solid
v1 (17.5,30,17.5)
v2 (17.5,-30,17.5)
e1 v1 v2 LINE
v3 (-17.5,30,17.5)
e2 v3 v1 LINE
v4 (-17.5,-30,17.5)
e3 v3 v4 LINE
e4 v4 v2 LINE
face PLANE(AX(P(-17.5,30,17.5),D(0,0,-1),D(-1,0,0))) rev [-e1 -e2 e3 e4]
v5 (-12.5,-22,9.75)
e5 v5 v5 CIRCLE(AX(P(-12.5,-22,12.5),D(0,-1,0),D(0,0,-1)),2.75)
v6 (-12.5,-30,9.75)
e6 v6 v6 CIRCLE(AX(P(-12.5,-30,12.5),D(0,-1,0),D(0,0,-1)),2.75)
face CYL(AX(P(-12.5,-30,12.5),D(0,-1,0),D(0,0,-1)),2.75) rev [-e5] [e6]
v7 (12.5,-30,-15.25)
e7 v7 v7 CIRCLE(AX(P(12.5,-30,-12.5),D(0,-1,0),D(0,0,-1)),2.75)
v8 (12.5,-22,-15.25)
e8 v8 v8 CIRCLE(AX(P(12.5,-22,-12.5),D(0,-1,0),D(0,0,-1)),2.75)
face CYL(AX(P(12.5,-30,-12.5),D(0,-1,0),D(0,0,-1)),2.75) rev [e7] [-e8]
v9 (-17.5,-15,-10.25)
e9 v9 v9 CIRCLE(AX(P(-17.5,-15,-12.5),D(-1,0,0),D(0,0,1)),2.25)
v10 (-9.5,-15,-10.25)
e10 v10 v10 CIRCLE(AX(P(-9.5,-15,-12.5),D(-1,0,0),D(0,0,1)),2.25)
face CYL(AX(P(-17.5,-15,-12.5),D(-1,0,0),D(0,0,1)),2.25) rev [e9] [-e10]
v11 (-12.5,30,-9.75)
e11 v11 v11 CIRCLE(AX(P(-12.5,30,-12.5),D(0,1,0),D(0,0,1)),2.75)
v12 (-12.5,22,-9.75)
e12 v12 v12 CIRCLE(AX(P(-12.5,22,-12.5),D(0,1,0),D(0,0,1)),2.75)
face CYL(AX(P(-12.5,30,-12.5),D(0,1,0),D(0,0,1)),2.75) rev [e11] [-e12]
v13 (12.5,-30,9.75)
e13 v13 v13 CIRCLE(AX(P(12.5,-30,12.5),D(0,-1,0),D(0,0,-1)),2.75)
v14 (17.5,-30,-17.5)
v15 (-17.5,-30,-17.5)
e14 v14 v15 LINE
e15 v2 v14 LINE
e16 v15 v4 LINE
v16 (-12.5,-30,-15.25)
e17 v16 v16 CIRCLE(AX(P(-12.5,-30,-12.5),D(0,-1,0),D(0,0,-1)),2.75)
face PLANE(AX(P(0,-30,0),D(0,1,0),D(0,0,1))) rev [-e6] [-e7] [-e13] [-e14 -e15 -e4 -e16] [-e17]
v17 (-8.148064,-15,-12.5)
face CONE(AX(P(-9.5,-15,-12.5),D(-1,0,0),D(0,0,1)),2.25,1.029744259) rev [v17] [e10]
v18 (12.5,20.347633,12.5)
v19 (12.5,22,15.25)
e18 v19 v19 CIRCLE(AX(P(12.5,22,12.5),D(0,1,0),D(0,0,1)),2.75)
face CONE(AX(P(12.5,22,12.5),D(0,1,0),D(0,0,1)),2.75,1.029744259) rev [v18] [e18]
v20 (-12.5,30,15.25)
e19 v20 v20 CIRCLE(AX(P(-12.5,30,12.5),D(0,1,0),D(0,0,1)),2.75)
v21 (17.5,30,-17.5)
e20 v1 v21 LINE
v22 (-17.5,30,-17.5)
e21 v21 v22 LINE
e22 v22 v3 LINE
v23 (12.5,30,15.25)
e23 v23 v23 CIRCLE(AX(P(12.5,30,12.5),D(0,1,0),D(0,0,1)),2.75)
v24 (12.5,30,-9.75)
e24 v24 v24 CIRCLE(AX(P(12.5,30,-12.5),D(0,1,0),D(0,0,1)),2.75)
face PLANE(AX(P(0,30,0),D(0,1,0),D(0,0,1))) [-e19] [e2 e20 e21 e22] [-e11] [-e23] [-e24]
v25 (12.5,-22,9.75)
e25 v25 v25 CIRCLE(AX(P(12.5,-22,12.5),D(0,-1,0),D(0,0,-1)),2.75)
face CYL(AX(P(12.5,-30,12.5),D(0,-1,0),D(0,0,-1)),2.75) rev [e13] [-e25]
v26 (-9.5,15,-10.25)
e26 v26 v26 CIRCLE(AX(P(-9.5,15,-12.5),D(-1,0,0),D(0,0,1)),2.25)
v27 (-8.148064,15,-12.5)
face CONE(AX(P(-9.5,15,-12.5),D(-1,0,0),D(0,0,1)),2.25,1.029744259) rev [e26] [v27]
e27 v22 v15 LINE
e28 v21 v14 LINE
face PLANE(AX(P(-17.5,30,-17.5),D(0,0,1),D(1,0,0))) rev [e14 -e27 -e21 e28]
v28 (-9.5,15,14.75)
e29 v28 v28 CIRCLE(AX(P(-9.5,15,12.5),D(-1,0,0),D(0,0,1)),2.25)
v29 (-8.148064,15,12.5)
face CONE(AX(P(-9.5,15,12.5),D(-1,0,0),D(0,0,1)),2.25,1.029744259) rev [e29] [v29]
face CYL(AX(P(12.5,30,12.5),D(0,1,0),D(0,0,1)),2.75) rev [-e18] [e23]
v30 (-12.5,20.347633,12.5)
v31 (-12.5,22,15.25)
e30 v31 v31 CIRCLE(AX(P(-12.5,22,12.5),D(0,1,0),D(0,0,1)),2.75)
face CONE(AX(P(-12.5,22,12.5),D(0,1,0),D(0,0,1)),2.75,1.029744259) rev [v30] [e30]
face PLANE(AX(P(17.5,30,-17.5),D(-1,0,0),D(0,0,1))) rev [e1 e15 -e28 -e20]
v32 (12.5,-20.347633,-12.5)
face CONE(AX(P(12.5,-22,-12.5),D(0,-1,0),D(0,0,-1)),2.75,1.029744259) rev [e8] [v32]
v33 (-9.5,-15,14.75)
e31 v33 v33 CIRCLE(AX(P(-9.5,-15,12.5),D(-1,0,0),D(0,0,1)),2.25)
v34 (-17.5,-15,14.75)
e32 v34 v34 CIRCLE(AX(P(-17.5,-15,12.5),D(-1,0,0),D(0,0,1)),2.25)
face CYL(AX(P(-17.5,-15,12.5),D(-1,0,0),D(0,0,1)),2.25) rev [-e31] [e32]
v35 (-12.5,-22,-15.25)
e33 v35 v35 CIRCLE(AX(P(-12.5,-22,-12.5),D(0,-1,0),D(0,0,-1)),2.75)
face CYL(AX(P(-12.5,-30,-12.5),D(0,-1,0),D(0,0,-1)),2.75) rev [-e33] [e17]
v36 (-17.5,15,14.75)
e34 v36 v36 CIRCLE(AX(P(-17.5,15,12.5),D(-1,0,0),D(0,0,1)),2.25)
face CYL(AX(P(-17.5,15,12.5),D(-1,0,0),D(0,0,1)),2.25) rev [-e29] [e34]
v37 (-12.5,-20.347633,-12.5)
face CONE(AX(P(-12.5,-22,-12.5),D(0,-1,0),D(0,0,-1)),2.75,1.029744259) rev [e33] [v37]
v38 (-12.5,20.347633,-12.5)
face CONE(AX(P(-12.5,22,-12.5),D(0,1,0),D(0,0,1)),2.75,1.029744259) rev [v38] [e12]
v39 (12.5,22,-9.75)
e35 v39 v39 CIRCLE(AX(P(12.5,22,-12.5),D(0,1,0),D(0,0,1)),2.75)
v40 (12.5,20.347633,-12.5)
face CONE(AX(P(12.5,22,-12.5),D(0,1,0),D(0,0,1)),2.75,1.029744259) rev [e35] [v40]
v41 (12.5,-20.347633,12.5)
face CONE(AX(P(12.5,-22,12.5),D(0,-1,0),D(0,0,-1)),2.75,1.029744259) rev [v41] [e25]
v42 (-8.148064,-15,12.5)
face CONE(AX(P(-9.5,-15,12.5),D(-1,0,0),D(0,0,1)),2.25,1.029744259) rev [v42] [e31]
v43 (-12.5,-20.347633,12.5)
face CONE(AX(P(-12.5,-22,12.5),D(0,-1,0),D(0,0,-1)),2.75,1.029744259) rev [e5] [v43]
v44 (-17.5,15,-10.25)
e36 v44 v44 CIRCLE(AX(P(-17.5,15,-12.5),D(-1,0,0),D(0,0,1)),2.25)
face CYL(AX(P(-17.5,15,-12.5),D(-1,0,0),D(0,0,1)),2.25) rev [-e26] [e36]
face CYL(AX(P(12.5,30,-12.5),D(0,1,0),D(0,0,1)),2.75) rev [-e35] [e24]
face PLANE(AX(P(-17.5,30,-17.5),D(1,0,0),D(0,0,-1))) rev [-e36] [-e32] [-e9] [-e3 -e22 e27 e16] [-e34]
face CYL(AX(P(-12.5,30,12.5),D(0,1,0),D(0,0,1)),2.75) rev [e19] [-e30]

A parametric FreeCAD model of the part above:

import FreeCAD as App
import Part
import Sketcher
Q = App.Units.Quantity


def add_polygon(sketch, points):
    """Adds a closed chain of lines whose ends are joined by coincident constraints."""
    first, n = sketch.GeometryCount, len(points)
    for a, b in zip(points, points[1:] + points[:1]):
        sketch.addGeometry(Part.LineSegment(App.Vector(*a, 0), App.Vector(*b, 0)), False)
    for i in range(n):
        sketch.addConstraint(Sketcher.Constraint("Coincident", first + i, 2, first + (i + 1) % n, 1))

doc = App.newDocument("Part")
params = doc.addObject("Spreadsheet::Sheet", "Params")
for row, (alias, value) in enumerate([
    ("sketch1_width", "35 mm"),
    ("pad1_length", "60 mm"),
    ("sketch2_width", "8 mm"),
    ("sketch2_height", "2.75 mm"),
    ("groove_angle", "360 deg"),
    ("sketch3_width", "8 mm"),
    ("sketch3_height", "2.75 mm"),
    ("groove2_angle", "360 deg"),
    ("sketch4_width", "8 mm"),
    ("sketch4_height", "2.75 mm"),
    ("groove3_angle", "360 deg"),
    ("sketch5_width", "8 mm"),
    ("sketch5_height", "2.75 mm"),
    ("groove4_angle", "360 deg"),
    ("sketch6_width", "8 mm"),
    ("sketch6_height", "2.75 mm"),
    ("groove5_angle", "360 deg"),
    ("sketch7_width", "8 mm"),
    ("sketch7_height", "2.25 mm"),
    ("groove6_angle", "360 deg"),
    ("sketch8_width", "8 mm"),
    ("sketch8_height", "2.25 mm"),
    ("groove7_angle", "360 deg"),
], start=1):
    params.set(f"A{row}", alias)
    params.set(f"B{row}", "=" + value)
    params.setAlias(f"B{row}", alias)

body = doc.addObject("PartDesign::Body", "Body")

sketch1 = body.newObject("Sketcher::SketchObject", "Sketch")
sketch1.AttachmentSupport = (doc.getObject("XZ_Plane"), [""])
sketch1.MapMode = "FlatFace"
add_polygon(sketch1, [(-18, -18), (-18, 18), (18, 18), (18, -18)])
sketch1.addConstraint([
    Sketcher.Constraint("Vertical", 0),
    Sketcher.Constraint("Horizontal", 1),
    Sketcher.Constraint("Vertical", 2),
    Sketcher.Constraint("Horizontal", 3),
    Sketcher.Constraint("Symmetric", 0, 2, 2, 2, -1, 1),
    Sketcher.Constraint("Equal", 3, 0),
    Sketcher.Constraint("DistanceX", 1, 1, 1, 2, Q("35 mm")),
])
sketch1.setExpression("Constraints[10]", "Params.sketch1_width")
pad1 = body.newObject("PartDesign::Pad", "Pad")
pad1.Profile = sketch1
pad1.setExpression("Length", "Params.pad1_length")
pad1.Midplane = True

sketch2 = body.newObject("Sketcher::SketchObject", "Sketch001")
sketch2.AttachmentSupport = (doc.getObject("YZ_Plane"), [""])
sketch2.MapMode = "FlatFace"
sketch2.AttachmentOffset = App.Placement(App.Vector(0, 0, -12.5), App.Rotation())
add_polygon(sketch2, [(20.3, -12.5), (30, -12.5), (30, -9.8), (22, -9.8)])
sketch2.addGeometry(Part.LineSegment(App.Vector(30, -12.5, 0), App.Vector(20.3, -12.5, 0)), True)
sketch2.addConstraint([
    Sketcher.Constraint("Horizontal", 0),
    Sketcher.Constraint("Vertical", 1),
    Sketcher.Constraint("Horizontal", 2),
    Sketcher.Constraint("Horizontal", 4),
    Sketcher.Constraint("Coincident", 4, 1, 0, 2),
    Sketcher.Constraint("Equal", 0, 4),
    Sketcher.Constraint("DistanceX", 2, 2, 2, 1, Q("8 mm")),
    Sketcher.Constraint("Angle", 3, Q("-121 deg")),
    Sketcher.Constraint("DistanceX", -1, 1, 0, 2, Q("30 mm")),
    Sketcher.Constraint("DistanceY", 1, 1, 1, 2, Q("2.75 mm")),
    Sketcher.Constraint("DistanceY", 0, 2, -1, 1, Q("12.5 mm")),
])
sketch2.setExpression("Constraints[10]", "Params.sketch2_width")
sketch2.setExpression("Constraints[13]", "Params.sketch2_height")
groove = body.newObject("PartDesign::Groove", "Groove")
groove.Profile = sketch2
groove.ReferenceAxis = (sketch2, ["Axis0"])
groove.setExpression("Angle", "Params.groove_angle")
doc.recompute()

mirrored = body.newObject("PartDesign::Mirrored", "Mirrored")
mirrored.Originals = [groove]
mirrored.MirrorPlane = (doc.getObject("YZ_Plane"), [""])
body.Tip = mirrored
doc.recompute()

mirrored2 = body.newObject("PartDesign::Mirrored", "Mirrored001")
mirrored2.Originals = [groove]
mirrored2.MirrorPlane = (doc.getObject("XY_Plane"), [""])
body.Tip = mirrored2

sketch3 = body.newObject("Sketcher::SketchObject", "Sketch002")
sketch3.AttachmentSupport = (doc.getObject("YZ_Plane"), [""])
sketch3.MapMode = "FlatFace"
sketch3.AttachmentOffset = App.Placement(App.Vector(0, 0, 12.5), App.Rotation())
add_polygon(sketch3, [(20.3, 12.5), (30, 12.5), (30, 9.8), (22, 9.8)])
sketch3.addGeometry(Part.LineSegment(App.Vector(30, 12.5, 0), App.Vector(20.3, 12.5, 0)), True)
sketch3.addConstraint([
    Sketcher.Constraint("Horizontal", 0),
    Sketcher.Constraint("Vertical", 1),
    Sketcher.Constraint("Horizontal", 2),
    Sketcher.Constraint("Horizontal", 4),
    Sketcher.Constraint("Coincident", 4, 1, 0, 2),
    Sketcher.Constraint("Equal", 0, 4),
    Sketcher.Constraint("DistanceX", 2, 2, 2, 1, Q("8 mm")),
    Sketcher.Constraint("Angle", 3, Q("121 deg")),
    Sketcher.Constraint("DistanceX", -1, 1, 0, 2, Q("30 mm")),
    Sketcher.Constraint("DistanceY", 1, 2, 1, 1, Q("2.75 mm")),
    Sketcher.Constraint("DistanceY", -1, 1, 0, 2, Q("12.5 mm")),
])
sketch3.setExpression("Constraints[10]", "Params.sketch3_width")
sketch3.setExpression("Constraints[13]", "Params.sketch3_height")
groove2 = body.newObject("PartDesign::Groove", "Groove001")
groove2.Profile = sketch3
groove2.ReferenceAxis = (sketch3, ["Axis0"])
groove2.setExpression("Angle", "Params.groove2_angle")
doc.recompute()

mirrored3 = body.newObject("PartDesign::Mirrored", "Mirrored002")
mirrored3.Originals = [groove]
mirrored3.MirrorPlane = (doc.getObject("XZ_Plane"), [""])
body.Tip = mirrored3

sketch4 = body.newObject("Sketcher::SketchObject", "Sketch003")
sketch4.AttachmentSupport = (doc.getObject("YZ_Plane"), [""])
sketch4.MapMode = "FlatFace"
sketch4.AttachmentOffset = App.Placement(App.Vector(0, 0, 12.5), App.Rotation())
add_polygon(sketch4, [(-20.3, -12.5), (-30, -12.5), (-30, -9.8), (-22, -9.8)])
sketch4.addGeometry(Part.LineSegment(App.Vector(-30, -12.5, 0), App.Vector(-20.3, -12.5, 0)), True)
sketch4.addConstraint([
    Sketcher.Constraint("Horizontal", 0),
    Sketcher.Constraint("Vertical", 1),
    Sketcher.Constraint("Horizontal", 2),
    Sketcher.Constraint("Horizontal", 4),
    Sketcher.Constraint("Coincident", 4, 1, 0, 2),
    Sketcher.Constraint("Equal", 0, 4),
    Sketcher.Constraint("DistanceX", 2, 1, 2, 2, Q("8 mm")),
    Sketcher.Constraint("Angle", 3, Q("-59 deg")),
    Sketcher.Constraint("DistanceX", 0, 2, -1, 1, Q("30 mm")),
    Sketcher.Constraint("DistanceY", 1, 1, 1, 2, Q("2.75 mm")),
    Sketcher.Constraint("DistanceY", 0, 2, -1, 1, Q("12.5 mm")),
])
sketch4.setExpression("Constraints[10]", "Params.sketch4_width")
sketch4.setExpression("Constraints[13]", "Params.sketch4_height")
groove3 = body.newObject("PartDesign::Groove", "Groove002")
groove3.Profile = sketch4
groove3.ReferenceAxis = (sketch4, ["Axis0"])
groove3.setExpression("Angle", "Params.groove3_angle")

sketch5 = body.newObject("Sketcher::SketchObject", "Sketch004")
sketch5.AttachmentSupport = (doc.getObject("YZ_Plane"), [""])
sketch5.MapMode = "FlatFace"
sketch5.AttachmentOffset = App.Placement(App.Vector(0, 0, -12.5), App.Rotation())
add_polygon(sketch5, [(-20.3, 12.5), (-30, 12.5), (-30, 9.8), (-22, 9.8)])
sketch5.addGeometry(Part.LineSegment(App.Vector(-30, 12.5, 0), App.Vector(-20.3, 12.5, 0)), True)
sketch5.addConstraint([
    Sketcher.Constraint("Horizontal", 0),
    Sketcher.Constraint("Vertical", 1),
    Sketcher.Constraint("Horizontal", 2),
    Sketcher.Constraint("Horizontal", 4),
    Sketcher.Constraint("Coincident", 4, 1, 0, 2),
    Sketcher.Constraint("Equal", 0, 4),
    Sketcher.Constraint("DistanceX", 2, 1, 2, 2, Q("8 mm")),
    Sketcher.Constraint("Angle", 3, Q("59 deg")),
    Sketcher.Constraint("DistanceX", 0, 2, -1, 1, Q("30 mm")),
    Sketcher.Constraint("DistanceY", 1, 2, 1, 1, Q("2.75 mm")),
    Sketcher.Constraint("DistanceY", -1, 1, 0, 2, Q("12.5 mm")),
])
sketch5.setExpression("Constraints[10]", "Params.sketch5_width")
sketch5.setExpression("Constraints[13]", "Params.sketch5_height")
groove4 = body.newObject("PartDesign::Groove", "Groove003")
groove4.Profile = sketch5
groove4.ReferenceAxis = (sketch5, ["Axis0"])
groove4.setExpression("Angle", "Params.groove4_angle")

sketch6 = body.newObject("Sketcher::SketchObject", "Sketch005")
sketch6.AttachmentSupport = (doc.getObject("YZ_Plane"), [""])
sketch6.MapMode = "FlatFace"
sketch6.AttachmentOffset = App.Placement(App.Vector(0, 0, 12.5), App.Rotation())
add_polygon(sketch6, [(-30, 12.5), (-20.3, 12.5), (-22, 9.8), (-30, 9.8)])
sketch6.addGeometry(Part.LineSegment(App.Vector(-20.3, 12.5, 0), App.Vector(-30, 12.5, 0)), True)
sketch6.addConstraint([
    Sketcher.Constraint("Horizontal", 0),
    Sketcher.Constraint("Horizontal", 2),
    Sketcher.Constraint("Vertical", 3),
    Sketcher.Constraint("Horizontal", 4),
    Sketcher.Constraint("Coincident", 4, 1, 0, 2),
    Sketcher.Constraint("Vertical", 2, 2, 4, 2),
    Sketcher.Constraint("DistanceX", 2, 2, 2, 1, Q("8 mm")),
    Sketcher.Constraint("Angle", 1, Q("-121 deg")),
    Sketcher.Constraint("DistanceX", 1, 2, -1, 1, Q("22 mm")),
    Sketcher.Constraint("DistanceY", 3, 1, 3, 2, Q("2.75 mm")),
    Sketcher.Constraint("DistanceY", -1, 1, 0, 2, Q("12.5 mm")),
])
sketch6.setExpression("Constraints[10]", "Params.sketch6_width")
sketch6.setExpression("Constraints[13]", "Params.sketch6_height")
groove5 = body.newObject("PartDesign::Groove", "Groove004")
groove5.Profile = sketch6
groove5.ReferenceAxis = (sketch6, ["Axis0"])
groove5.setExpression("Angle", "Params.groove5_angle")

sketch7 = body.newObject("Sketcher::SketchObject", "Sketch006")
sketch7.AttachmentSupport = (doc.getObject("XZ_Plane"), [""])
sketch7.MapMode = "FlatFace"
sketch7.AttachmentOffset = App.Placement(App.Vector(0, 0, -15), App.Rotation())
add_polygon(sketch7, [(-8.1, -12.5), (-17.5, -12.5), (-17.5, -10.2), (-9.5, -10.2)])
sketch7.addGeometry(Part.LineSegment(App.Vector(-17.5, -12.5, 0), App.Vector(-8.1, -12.5, 0)), True)
sketch7.addConstraint([
    Sketcher.Constraint("Horizontal", 0),
    Sketcher.Constraint("Vertical", 1),
    Sketcher.Constraint("Horizontal", 2),
    Sketcher.Constraint("Horizontal", 4),
    Sketcher.Constraint("Coincident", 4, 1, 0, 2),
    Sketcher.Constraint("Equal", 0, 4),
    Sketcher.Constraint("DistanceX", 2, 1, 2, 2, Q("8 mm")),
    Sketcher.Constraint("Angle", 3, Q("-59 deg")),
    Sketcher.Constraint("DistanceY", 1, 1, 1, 2, Q("2.25 mm")),
    Sketcher.Constraint("DistanceX", 0, 2, -1, 1, Q("17.5 mm")),
    Sketcher.Constraint("DistanceY", 0, 2, -1, 1, Q("12.5 mm")),
])
sketch7.setExpression("Constraints[10]", "Params.sketch7_width")
sketch7.setExpression("Constraints[12]", "Params.sketch7_height")
groove6 = body.newObject("PartDesign::Groove", "Groove005")
groove6.Profile = sketch7
groove6.ReferenceAxis = (sketch7, ["Axis0"])
groove6.setExpression("Angle", "Params.groove6_angle")
doc.recompute()

mirrored4 = body.newObject("PartDesign::Mirrored", "Mirrored003")
mirrored4.Originals = [groove6]
mirrored4.MirrorPlane = (doc.getObject("XY_Plane"), [""])
body.Tip = mirrored4
doc.recompute()

mirrored5 = body.newObject("PartDesign::Mirrored", "Mirrored004")
mirrored5.Originals = [groove6]
mirrored5.MirrorPlane = (doc.getObject("XZ_Plane"), [""])
body.Tip = mirrored5

sketch8 = body.newObject("Sketcher::SketchObject", "Sketch007")
sketch8.AttachmentSupport = (doc.getObject("XZ_Plane"), [""])
sketch8.MapMode = "FlatFace"
sketch8.AttachmentOffset = App.Placement(App.Vector(0, 0, 15), App.Rotation())
add_polygon(sketch8, [(-8.1, 12.5), (-17.5, 12.5), (-17.5, 10.2), (-9.5, 10.2)])
sketch8.addGeometry(Part.LineSegment(App.Vector(-17.5, 12.5, 0), App.Vector(-8.1, 12.5, 0)), True)
sketch8.addConstraint([
    Sketcher.Constraint("Horizontal", 0),
    Sketcher.Constraint("Vertical", 1),
    Sketcher.Constraint("Horizontal", 2),
    Sketcher.Constraint("Horizontal", 4),
    Sketcher.Constraint("Coincident", 4, 1, 0, 2),
    Sketcher.Constraint("Equal", 0, 4),
    Sketcher.Constraint("DistanceX", 2, 1, 2, 2, Q("8 mm")),
    Sketcher.Constraint("Angle", 3, Q("59 deg")),
    Sketcher.Constraint("DistanceY", 1, 2, 1, 1, Q("2.25 mm")),
    Sketcher.Constraint("DistanceX", 0, 2, -1, 1, Q("17.5 mm")),
    Sketcher.Constraint("DistanceY", -1, 1, 0, 2, Q("12.5 mm")),
])
sketch8.setExpression("Constraints[10]", "Params.sketch8_width")
sketch8.setExpression("Constraints[12]", "Params.sketch8_height")
groove7 = body.newObject("PartDesign::Groove", "Groove006")
groove7.Profile = sketch8
groove7.ReferenceAxis = (sketch8, ["Axis0"])
groove7.setExpression("Angle", "Params.groove7_angle")

doc.recompute()
